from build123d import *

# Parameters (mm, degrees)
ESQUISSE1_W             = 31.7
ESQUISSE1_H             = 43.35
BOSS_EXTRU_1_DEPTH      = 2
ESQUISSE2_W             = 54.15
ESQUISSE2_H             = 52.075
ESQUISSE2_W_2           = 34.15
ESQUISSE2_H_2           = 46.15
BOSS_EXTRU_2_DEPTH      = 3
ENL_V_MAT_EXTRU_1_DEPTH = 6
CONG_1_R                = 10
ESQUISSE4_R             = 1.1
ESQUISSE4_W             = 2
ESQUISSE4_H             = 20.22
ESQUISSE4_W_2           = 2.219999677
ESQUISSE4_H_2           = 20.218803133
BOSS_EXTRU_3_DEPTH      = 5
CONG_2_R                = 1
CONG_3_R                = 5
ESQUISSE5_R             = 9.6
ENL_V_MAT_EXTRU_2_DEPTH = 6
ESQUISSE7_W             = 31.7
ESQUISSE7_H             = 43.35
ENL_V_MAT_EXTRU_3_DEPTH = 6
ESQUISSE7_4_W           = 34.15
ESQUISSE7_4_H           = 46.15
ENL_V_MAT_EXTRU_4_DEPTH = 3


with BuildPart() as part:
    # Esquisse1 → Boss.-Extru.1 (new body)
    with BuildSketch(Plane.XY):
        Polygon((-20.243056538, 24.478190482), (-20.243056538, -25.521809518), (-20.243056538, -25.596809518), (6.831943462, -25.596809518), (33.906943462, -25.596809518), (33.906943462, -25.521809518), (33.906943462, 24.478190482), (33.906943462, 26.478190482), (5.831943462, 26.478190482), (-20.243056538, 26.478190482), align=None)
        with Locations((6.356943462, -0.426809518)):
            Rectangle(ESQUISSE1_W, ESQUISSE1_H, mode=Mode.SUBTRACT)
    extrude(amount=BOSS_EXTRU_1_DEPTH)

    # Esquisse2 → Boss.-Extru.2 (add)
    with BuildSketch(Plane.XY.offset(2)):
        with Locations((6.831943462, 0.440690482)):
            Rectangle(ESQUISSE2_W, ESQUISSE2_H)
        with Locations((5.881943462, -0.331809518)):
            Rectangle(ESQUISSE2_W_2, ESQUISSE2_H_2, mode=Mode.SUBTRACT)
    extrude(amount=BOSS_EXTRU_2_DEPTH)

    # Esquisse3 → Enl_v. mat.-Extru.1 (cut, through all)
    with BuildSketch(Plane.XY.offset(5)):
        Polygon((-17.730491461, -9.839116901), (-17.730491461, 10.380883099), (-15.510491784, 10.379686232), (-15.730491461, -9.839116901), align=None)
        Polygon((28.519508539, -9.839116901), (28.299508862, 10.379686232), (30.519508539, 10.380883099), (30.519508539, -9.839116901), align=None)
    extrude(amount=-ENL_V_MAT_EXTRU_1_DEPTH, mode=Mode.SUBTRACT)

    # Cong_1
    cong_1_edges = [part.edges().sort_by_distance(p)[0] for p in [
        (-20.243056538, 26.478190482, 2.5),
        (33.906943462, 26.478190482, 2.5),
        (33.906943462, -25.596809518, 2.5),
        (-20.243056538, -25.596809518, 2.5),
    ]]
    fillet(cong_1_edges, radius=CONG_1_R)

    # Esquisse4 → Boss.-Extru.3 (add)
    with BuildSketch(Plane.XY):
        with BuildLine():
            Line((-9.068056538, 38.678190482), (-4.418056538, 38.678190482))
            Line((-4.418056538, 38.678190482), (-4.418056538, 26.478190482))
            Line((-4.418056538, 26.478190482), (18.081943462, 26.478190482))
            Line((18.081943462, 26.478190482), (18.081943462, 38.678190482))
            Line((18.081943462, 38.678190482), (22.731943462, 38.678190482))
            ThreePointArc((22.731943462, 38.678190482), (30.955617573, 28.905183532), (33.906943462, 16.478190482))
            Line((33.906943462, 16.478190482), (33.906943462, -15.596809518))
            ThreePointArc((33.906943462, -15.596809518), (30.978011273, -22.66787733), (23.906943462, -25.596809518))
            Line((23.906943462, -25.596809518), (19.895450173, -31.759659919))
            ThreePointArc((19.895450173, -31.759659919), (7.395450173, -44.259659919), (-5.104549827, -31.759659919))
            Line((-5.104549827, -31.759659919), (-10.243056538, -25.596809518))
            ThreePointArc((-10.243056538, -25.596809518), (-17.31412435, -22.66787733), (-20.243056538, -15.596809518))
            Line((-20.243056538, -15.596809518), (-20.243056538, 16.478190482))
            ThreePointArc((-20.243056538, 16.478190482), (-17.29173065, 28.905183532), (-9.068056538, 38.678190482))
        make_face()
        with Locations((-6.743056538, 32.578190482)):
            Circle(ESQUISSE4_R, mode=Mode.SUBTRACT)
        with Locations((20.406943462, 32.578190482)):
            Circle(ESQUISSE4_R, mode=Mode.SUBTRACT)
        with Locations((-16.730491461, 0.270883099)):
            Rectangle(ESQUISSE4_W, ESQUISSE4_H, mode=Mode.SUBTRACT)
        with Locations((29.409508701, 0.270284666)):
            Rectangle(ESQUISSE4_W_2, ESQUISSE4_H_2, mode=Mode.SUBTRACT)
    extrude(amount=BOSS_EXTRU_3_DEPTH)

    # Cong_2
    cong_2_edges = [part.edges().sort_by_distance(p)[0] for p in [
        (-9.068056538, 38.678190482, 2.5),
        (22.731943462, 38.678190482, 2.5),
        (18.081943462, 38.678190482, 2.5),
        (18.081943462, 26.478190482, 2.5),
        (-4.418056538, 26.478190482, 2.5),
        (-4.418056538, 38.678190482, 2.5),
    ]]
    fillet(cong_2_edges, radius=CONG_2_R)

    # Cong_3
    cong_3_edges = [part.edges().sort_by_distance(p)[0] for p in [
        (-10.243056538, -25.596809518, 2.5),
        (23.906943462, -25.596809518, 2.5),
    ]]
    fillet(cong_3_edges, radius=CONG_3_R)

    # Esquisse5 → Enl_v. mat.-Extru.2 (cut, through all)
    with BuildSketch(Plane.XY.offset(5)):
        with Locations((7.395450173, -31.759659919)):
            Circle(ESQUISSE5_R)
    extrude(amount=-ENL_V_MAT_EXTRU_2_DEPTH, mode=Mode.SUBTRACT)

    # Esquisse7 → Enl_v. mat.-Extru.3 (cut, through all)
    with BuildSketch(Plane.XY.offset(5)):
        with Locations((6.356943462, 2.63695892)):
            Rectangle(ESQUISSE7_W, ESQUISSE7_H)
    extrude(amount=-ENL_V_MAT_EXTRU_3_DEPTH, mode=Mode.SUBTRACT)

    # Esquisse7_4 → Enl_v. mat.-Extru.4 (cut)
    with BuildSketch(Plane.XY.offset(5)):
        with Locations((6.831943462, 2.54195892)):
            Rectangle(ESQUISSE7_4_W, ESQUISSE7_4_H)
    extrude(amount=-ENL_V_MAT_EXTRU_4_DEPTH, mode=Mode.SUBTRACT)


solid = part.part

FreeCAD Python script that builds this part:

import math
import FreeCAD as App
import Part
import Sketcher

V = App.Vector


def edges_at(feature, points):
    """Names of the edges that pass closest to the given points."""
    edges = feature.Shape.Edges
    near = lambda p: min(range(len(edges)), key=lambda i: edges[i].distToShape(Part.Vertex(*p))[0])
    return sorted({f"Edge{near(p) + 1}" for p in points})


def add_polygon(sketch, points):
    """Adds a closed chain of lines whose ends are joined by coincident constraints."""
    first, n = sketch.GeometryCount, len(points)
    for a, b in zip(points, points[1:] + points[:1]):
        sketch.addGeometry(Part.LineSegment(App.Vector(*a, 0), App.Vector(*b, 0)), False)
    for i in range(n):
        sketch.addConstraint(Sketcher.Constraint("Coincident", first + i, 2, first + (i + 1) % n, 1))

doc = App.newDocument("Part")
body = doc.addObject("PartDesign::Body", "Body")

sketch1 = doc.addObject("Sketcher::SketchObject", "Sketch")
body.addObject(sketch1)
sketch1.AttachmentSupport = (doc.XY_Plane, [""])
sketch1.MapMode = "FlatFace"
add_polygon(sketch1, [(-20, -26), (34, -26), (34, 26), (-20, 26)])
add_polygon(sketch1, [(22, -22), (-9, -22), (-9, 21), (22, 21)])
sketch1.addConstraint(Sketcher.Constraint("Horizontal", 0))
sketch1.addConstraint(Sketcher.Constraint("Vertical", 1))
sketch1.addConstraint(Sketcher.Constraint("Horizontal", 2))
sketch1.addConstraint(Sketcher.Constraint("Vertical", 3))
sketch1.addConstraint(Sketcher.Constraint("Horizontal", 4))
sketch1.addConstraint(Sketcher.Constraint("Vertical", 5))
sketch1.addConstraint(Sketcher.Constraint("Horizontal", 6))
sketch1.addConstraint(Sketcher.Constraint("Vertical", 7))
sketch1.addConstraint(Sketcher.Constraint("DistanceX", 4, 2, 4, 1, 31.7))
sketch1.addConstraint(Sketcher.Constraint("DistanceX", 0, 1, 0, 2, 54.15))
sketch1.addConstraint(Sketcher.Constraint("DistanceY", 5, 1, 5, 2, 43.35))
sketch1.addConstraint(Sketcher.Constraint("DistanceX", 4, 2, 0, 2, 43.4))
sketch1.addConstraint(Sketcher.Constraint("DistanceY", 1, 1, 1, 2, 52.075))
sketch1.addConstraint(Sketcher.Constraint("DistanceY", 4, 2, 2, 2, 48.58))
sketch1.addConstraint(Sketcher.Constraint("DistanceY", 0, 2, -1, 1, 25.59681))
sketch1.addConstraint(Sketcher.Constraint("DistanceX", -1, 1, 0, 2, 33.906943))
pad1 = doc.addObject("PartDesign::Pad", "Pad")
body.addObject(pad1)
pad1.Profile = sketch1
pad1.Length = 2

sketch2 = doc.addObject("Sketcher::SketchObject", "Sketch001")
body.addObject(sketch2)
sketch2.AttachmentSupport = (doc.XY_Plane, [""])
sketch2.MapMode = "FlatFace"
sketch2.AttachmentOffset = App.Placement(V(0, 0, 2), App.Rotation())
add_polygon(sketch2, [(-20, 26), (-20, -26), (34, -26), (34, 26)])
add_polygon(sketch2, [(23, -23), (-11, -23), (-11, 23), (23, 23)])
sketch2.addConstraint(Sketcher.Constraint("Vertical", 0))
sketch2.addConstraint(Sketcher.Constraint("Horizontal", 1))
sketch2.addConstraint(Sketcher.Constraint("Vertical", 2))
sketch2.addConstraint(Sketcher.Constraint("Horizontal", 3))
sketch2.addConstraint(Sketcher.Constraint("Horizontal", 4))
sketch2.addConstraint(Sketcher.Constraint("Vertical", 5))
sketch2.addConstraint(Sketcher.Constraint("Horizontal", 6))
sketch2.addConstraint(Sketcher.Constraint("Vertical", 7))
sketch2.addConstraint(Sketcher.Constraint("DistanceX", 1, 1, 1, 2, 54.15))
sketch2.addConstraint(Sketcher.Constraint("DistanceX", 4, 2, 4, 1, 34.15))
sketch2.addConstraint(Sketcher.Constraint("DistanceY", 5, 1, 5, 2, 46.15))
sketch2.addConstraint(Sketcher.Constraint("DistanceX", 4, 2, 1, 2, 45.1))
sketch2.addConstraint(Sketcher.Constraint("DistanceY", 0, 2, 0, 1, 52.075))
sketch2.addConstraint(Sketcher.Constraint("DistanceY", 0, 2, 4, 2, 2.19))
sketch2.addConstraint(Sketcher.Constraint("DistanceY", 0, 2, -1, 1, 25.59681))
sketch2.addConstraint(Sketcher.Constraint("DistanceX", 0, 2, -1, 1, 20.243057))
pad2 = doc.addObject("PartDesign::Pad", "Pad001")
body.addObject(pad2)
pad2.Profile = sketch2
pad2.Length = 3

sketch3 = doc.addObject("Sketcher::SketchObject", "Sketch002")
body.addObject(sketch3)
sketch3.AttachmentSupport = (doc.XY_Plane, [""])
sketch3.MapMode = "FlatFace"
sketch3.AttachmentOffset = App.Placement(V(0, 0, 5), App.Rotation())
add_polygon(sketch3, [(-17.7, 10.4), (-17.7, -9.8), (-15.7, -9.8), (-15.5, 10.4)])
add_polygon(sketch3, [(28.3, 10.4), (28.5, -9.8), (30.5, -9.8), (30.5, 10.4)])
sketch3.addConstraint(Sketcher.Constraint("Vertical", 0))
sketch3.addConstraint(Sketcher.Constraint("Horizontal", 1))
sketch3.addConstraint(Sketcher.Constraint("Horizontal", 5))
sketch3.addConstraint(Sketcher.Constraint("Vertical", 6))
sketch3.addConstraint(Sketcher.Constraint("Horizontal", 1, 2, 4, 2))
sketch3.addConstraint(Sketcher.Constraint("Horizontal", 3, 2, 6, 2))
sketch3.addConstraint(Sketcher.Constraint("Horizontal", 2, 2, 7, 2))
sketch3.addConstraint(Sketcher.Constraint("Equal", 1, 5))
sketch3.addConstraint(Sketcher.Constraint("Equal", 2, 4))
sketch3.addConstraint(Sketcher.Constraint("DistanceX", 1, 1, 1, 2, 2.0))
sketch3.addConstraint(Sketcher.Constraint("DistanceY", 0, 2, 0, 1, 20.22))
sketch3.addConstraint(Sketcher.Constraint("Distance", 2, 20.22))
sketch3.addConstraint(Sketcher.Constraint("Distance", 3, 2.22))
sketch3.addConstraint(Sketcher.Constraint("DistanceX", 1, 2, 4, 2, 44.25))
sketch3.addConstraint(Sketcher.Constraint("DistanceX", 0, 2, -1, 1, 17.730491))
sketch3.addConstraint(Sketcher.Constraint("DistanceY", 0, 2, -1, 1, 9.839117))
pocket1 = doc.addObject("PartDesign::Pocket", "Pocket")
body.addObject(pocket1)
pocket1.Profile = sketch3
pocket1.Type = "ThroughAll"
doc.recompute()

fillet = doc.addObject("PartDesign::Fillet", "Fillet")
body.addObject(fillet)
fillet.Base = (pocket1, edges_at(pocket1, [
    (-20.243, 26.478, 2.5),
    (33.907, 26.478, 2.5),
    (33.907, -25.597, 2.5),
    (-20.243, -25.597, 2.5),
]))
fillet.Radius = 10

sketch4 = doc.addObject("Sketcher::SketchObject", "Sketch003")
body.addObject(sketch4)
sketch4.AttachmentSupport = (doc.XY_Plane, [""])
sketch4.MapMode = "FlatFace"
sketch4.addGeometry(Part.LineSegment(V(-4.4, 38.7, 0), V(-9.1, 38.7, 0)), False)
sketch4.addGeometry(Part.ArcOfCircle(Part.Circle(V(7.4, 16.5, 0), V(0, 0, 1), 27.6), math.radians(127), math.radians(180)), False)
sketch4.addGeometry(Part.LineSegment(V(-20.2, 16.5, 0), V(-20.2, -15.6, 0)), False)
sketch4.addGeometry(Part.ArcOfCircle(Part.Circle(V(-10.2, -15.6, 0), V(0, 0, 1), 10), math.radians(180), math.radians(270)), False)
sketch4.addGeometry(Part.LineSegment(V(-10.2, -25.6, 0), V(-5.1, -31.8, 0)), False)
sketch4.addGeometry(Part.ArcOfCircle(Part.Circle(V(7.4, -31.8, 0), V(0, 0, 1), 12.5), math.radians(180), math.radians(360)), False)
sketch4.addGeometry(Part.LineSegment(V(19.9, -31.8, 0), V(23.9, -25.6, 0)), False)
sketch4.addGeometry(Part.ArcOfCircle(Part.Circle(V(23.9, -15.6, 0), V(0, 0, 1), 10), math.radians(-90), math.radians(0)), False)
sketch4.addGeometry(Part.LineSegment(V(33.9, -15.6, 0), V(33.9, 16.5, 0)), False)
sketch4.addGeometry(Part.ArcOfCircle(Part.Circle(V(6.3, 16.5, 0), V(0, 0, 1), 27.6), math.radians(0), math.radians(53)), False)
sketch4.addGeometry(Part.LineSegment(V(22.7, 38.7, 0), V(18.1, 38.7, 0)), False)
sketch4.addGeometry(Part.LineSegment(V(18.1, 38.7, 0), V(18.1, 26.5, 0)), False)
sketch4.addGeometry(Part.LineSegment(V(18.1, 26.5, 0), V(-4.4, 26.5, 0)), False)
sketch4.addGeometry(Part.LineSegment(V(-4.4, 26.5, 0), V(-4.4, 38.7, 0)), False)
add_polygon(sketch4, [(28.3, -9.8), (28.3, 10.4), (30.5, 10.4), (30.5, -9.8)])
add_polygon(sketch4, [(-17.7, -9.8), (-17.7, 10.4), (-15.7, 10.4), (-15.7, -9.8)])
sketch4.addGeometry(Part.Circle(V(20.4, 32.6, 0), V(0, 0, 1), 1.1), False)
sketch4.addGeometry(Part.Circle(V(-6.7, 32.6, 0), V(0, 0, 1), 1.1), False)
sketch4.addConstraint(Sketcher.Constraint("Coincident", 0, 2, 1, 1))
sketch4.addConstraint(Sketcher.Constraint("Tangent", 1, 2, 2, 1))
sketch4.addConstraint(Sketcher.Constraint("Tangent", 2, 2, 3, 1))
sketch4.addConstraint(Sketcher.Constraint("Coincident", 3, 2, 4, 1))
sketch4.addConstraint(Sketcher.Constraint("Coincident", 4, 2, 5, 1))
sketch4.addConstraint(Sketcher.Constraint("Coincident", 5, 2, 6, 1))
sketch4.addConstraint(Sketcher.Constraint("Coincident", 6, 2, 7, 1))
sketch4.addConstraint(Sketcher.Constraint("Tangent", 7, 2, 8, 1))
sketch4.addConstraint(Sketcher.Constraint("Tangent", 8, 2, 9, 1))
sketch4.addConstraint(Sketcher.Constraint("Coincident", 9, 2, 10, 1))
sketch4.addConstraint(Sketcher.Constraint("Coincident", 10, 2, 11, 1))
sketch4.addConstraint(Sketcher.Constraint("Coincident", 11, 2, 12, 1))
sketch4.addConstraint(Sketcher.Constraint("Coincident", 12, 2, 13, 1))
sketch4.addConstraint(Sketcher.Constraint("Coincident", 13, 2, 0, 1))
sketch4.addConstraint(Sketcher.Constraint("Horizontal", 0))
sketch4.addConstraint(Sketcher.Constraint("Vertical", 2))
sketch4.addConstraint(Sketcher.Constraint("Vertical", 8))
sketch4.addConstraint(Sketcher.Constraint("Horizontal", 10))
sketch4.addConstraint(Sketcher.Constraint("Vertical", 11))
sketch4.addConstraint(Sketcher.Constraint("Horizontal", 12))
sketch4.addConstraint(Sketcher.Constraint("Vertical", 13))
sketch4.addConstraint(Sketcher.Constraint("Vertical", 14))
sketch4.addConstraint(Sketcher.Constraint("Horizontal", 15))
sketch4.addConstraint(Sketcher.Constraint("Vertical", 16))
sketch4.addConstraint(Sketcher.Constraint("Horizontal", 17))
sketch4.addConstraint(Sketcher.Constraint("Vertical", 18))
sketch4.addConstraint(Sketcher.Constraint("Horizontal", 19))
sketch4.addConstraint(Sketcher.Constraint("Vertical", 20))
sketch4.addConstraint(Sketcher.Constraint("Horizontal", 21))
sketch4.addConstraint(Sketcher.Constraint("Equal", 3, 7))
sketch4.addConstraint(Sketcher.Constraint("Equal", 1, 9))
sketch4.addConstraint(Sketcher.Constraint("Equal", 22, 23))
sketch4.addConstraint(Sketcher.Constraint("Horizontal", 3, 3, 7, 3))
sketch4.addConstraint(Sketcher.Constraint("Horizontal", 1, 3, 9, 3))
sketch4.addConstraint(Sketcher.Constraint("Horizontal", 22, 3, 23, 3))
sketch4.addConstraint(Sketcher.Constraint("Horizontal", 5, 3, 4, 2))
sketch4.addConstraint(Sketcher.Constraint("Horizontal", 4, 2, 5, 2))
sketch4.addConstraint(Sketcher.Constraint("Horizontal", 0, 2, 9, 2))
sketch4.addConstraint(Sketcher.Constraint("Horizontal", 17, 2, 20, 2))
sketch4.addConstraint(Sketcher.Constraint("Vertical", 1, 3, 5, 3))
sketch4.addConstraint(Sketcher.Constraint("Vertical", 7, 3, 6, 2))
sketch4.addConstraint(Sketcher.Constraint("Equal", 0, 10))
sketch4.addConstraint(Sketcher.Constraint("Radius", 3, 10.0))
sketch4.addConstraint(Sketcher.Constraint("Diameter", 22, 2.2))
sketch4.addConstraint(Sketcher.Constraint("Radius", 5, 12.5))
sketch4.addConstraint(Sketcher.Constraint("DistanceX", 19, 1, 19, 2, 2.0))
sketch4.addConstraint(Sketcher.Constraint("DistanceX", 12, 2, 12, 1, 22.5))
sketch4.addConstraint(Sketcher.Constraint("DistanceY", 11, 2, 11, 1, 12.2))
sketch4.addConstraint(Sketcher.Constraint("DistanceX", 2, 2, 3, 2, 10.0))
sketch4.addConstraint(Sketcher.Constraint("DistanceY", 1, 3, 11, 2, 10.0))
sketch4.addConstraint(Sketcher.Constraint("DistanceX", 0, 2, 0, 1, 4.65))
sketch4.addConstraint(Sketcher.Constraint("DistanceX", 15, 1, 15, 2, 2.22))
sketch4.addConstraint(Sketcher.Constraint("DistanceY", 18, 1, 18, 2, 20.22))
sketch4.addConstraint(Sketcher.Constraint("DistanceY", 1, 3, 22, 3, 16.1))
sketch4.addConstraint(Sketcher.Constraint("DistanceX", 22, 3, 7, 3, 3.5))
sketch4.addConstraint(Sketcher.Constraint("DistanceX", 3, 3, 23, 3, 3.5))
sketch4.addConstraint(Sketcher.Constraint("DistanceY", 2, 2, 2, 1, 32.075))
sketch4.addConstraint(Sketcher.Constraint("DistanceX", 3, 3, 7, 3, 34.15))
sketch4.addConstraint(Sketcher.Constraint("Distance", 6, 7.353421))
sketch4.addConstraint(Sketcher.Constraint("DistanceY", 14, 1, 14, 2, 20.218803))
sketch4.addConstraint(Sketcher.Constraint("DistanceX", -1, 1, 1, 3, 7.39545))
sketch4.addConstraint(Sketcher.Constraint("DistanceY", -1, 1, 1, 3, 16.47819))
sketch4.addConstraint(Sketcher.Constraint("DistanceX", -1, 1, 14, 2, 28.299509))
sketch4.addConstraint(Sketcher.Constraint("DistanceX", 18, 2, -1, 1, 17.730491))
sketch4.addConstraint(Sketcher.Constraint("DistanceY", -1, 1, 14, 2, 10.379686))
pad3 = doc.addObject("PartDesign::Pad", "Pad002")
body.addObject(pad3)
pad3.Profile = sketch4
pad3.Length = 5
doc.recompute()

fillet2 = doc.addObject("PartDesign::Fillet", "Fillet001")
body.addObject(fillet2)
fillet2.Base = (pad3, edges_at(pad3, [
    (-9.068, 38.678, 2.5),
    (22.732, 38.678, 2.5),
    (18.082, 38.678, 2.5),
    (18.082, 26.478, 2.5),
    (-4.418, 26.478, 2.5),
    (-4.418, 38.678, 2.5),
]))
fillet2.Radius = 1
doc.recompute()

fillet3 = doc.addObject("PartDesign::Fillet", "Fillet002")
body.addObject(fillet3)
fillet3.Base = (fillet2, edges_at(fillet2, [(-10.243, -25.597, 2.5), (23.907, -25.597, 2.5)]))
fillet3.Radius = 5

sketch5 = doc.addObject("Sketcher::SketchObject", "Sketch004")
body.addObject(sketch5)
sketch5.AttachmentSupport = (doc.XY_Plane, [""])
sketch5.MapMode = "FlatFace"
sketch5.AttachmentOffset = App.Placement(V(0, 0, 5), App.Rotation())
sketch5.addGeometry(Part.Circle(V(7, -32, 0), V(0, 0, 1), 10), False)
sketch5.addConstraint(Sketcher.Constraint("Diameter", 0, 19.2))
sketch5.addConstraint(Sketcher.Constraint("DistanceX", -1, 1, 0, 3, 7.39545))
sketch5.addConstraint(Sketcher.Constraint("DistanceY", 0, 3, -1, 1, 31.75966))
pocket2 = doc.addObject("PartDesign::Pocket", "Pocket001")
body.addObject(pocket2)
pocket2.Profile = sketch5
pocket2.Type = "ThroughAll"

sketch6 = doc.addObject("Sketcher::SketchObject", "Sketch005")
body.addObject(sketch6)
sketch6.AttachmentSupport = (doc.XY_Plane, [""])
sketch6.MapMode = "FlatFace"
sketch6.AttachmentOffset = App.Placement(V(0, 0, 5), App.Rotation())
add_polygon(sketch6, [(-9, 24), (-9, -19), (22, -19), (22, 24)])
sketch6.addConstraint(Sketcher.Constraint("Vertical", 0))
sketch6.addConstraint(Sketcher.Constraint("Horizontal", 1))
sketch6.addConstraint(Sketcher.Constraint("Vertical", 2))
sketch6.addConstraint(Sketcher.Constraint("Horizontal", 3))
sketch6.addConstraint(Sketcher.Constraint("DistanceX", 1, 1, 1, 2, 31.7))
sketch6.addConstraint(Sketcher.Constraint("DistanceY", 0, 2, 0, 1, 43.35))
sketch6.addConstraint(Sketcher.Constraint("DistanceY", 0, 2, -1, 1, 19.038041))
sketch6.addConstraint(Sketcher.Constraint("DistanceX", 0, 2, -1, 1, 9.493057))
pocket3 = doc.addObject("PartDesign::Pocket", "Pocket002")
body.addObject(pocket3)
pocket3.Profile = sketch6
pocket3.Type = "ThroughAll"

sketch7 = doc.addObject("Sketcher::SketchObject", "Sketch006")
body.addObject(sketch7)
sketch7.AttachmentSupport = (doc.XY_Plane, [""])
sketch7.MapMode = "FlatFace"
sketch7.AttachmentOffset = App.Placement(V(0, 0, 5), App.Rotation())
add_polygon(sketch7, [(-10, 26), (-10, -21), (24, -21), (24, 26)])
sketch7.addConstraint(Sketcher.Constraint("Vertical", 0))
sketch7.addConstraint(Sketcher.Constraint("Horizontal", 1))
sketch7.addConstraint(Sketcher.Constraint("Vertical", 2))
sketch7.addConstraint(Sketcher.Constraint("Horizontal", 3))
sketch7.addConstraint(Sketcher.Constraint("DistanceX", 1, 1, 1, 2, 34.15))
sketch7.addConstraint(Sketcher.Constraint("DistanceY", 0, 2, 0, 1, 46.15))
sketch7.addConstraint(Sketcher.Constraint("DistanceY", 0, 2, -1, 1, 20.533041))
sketch7.addConstraint(Sketcher.Constraint("DistanceX", 0, 2, -1, 1, 10.243057))
pocket4 = doc.addObject("PartDesign::Pocket", "Pocket003")
body.addObject(pocket4)
pocket4.Profile = sketch7
pocket4.Length = 3

doc.recompute()
